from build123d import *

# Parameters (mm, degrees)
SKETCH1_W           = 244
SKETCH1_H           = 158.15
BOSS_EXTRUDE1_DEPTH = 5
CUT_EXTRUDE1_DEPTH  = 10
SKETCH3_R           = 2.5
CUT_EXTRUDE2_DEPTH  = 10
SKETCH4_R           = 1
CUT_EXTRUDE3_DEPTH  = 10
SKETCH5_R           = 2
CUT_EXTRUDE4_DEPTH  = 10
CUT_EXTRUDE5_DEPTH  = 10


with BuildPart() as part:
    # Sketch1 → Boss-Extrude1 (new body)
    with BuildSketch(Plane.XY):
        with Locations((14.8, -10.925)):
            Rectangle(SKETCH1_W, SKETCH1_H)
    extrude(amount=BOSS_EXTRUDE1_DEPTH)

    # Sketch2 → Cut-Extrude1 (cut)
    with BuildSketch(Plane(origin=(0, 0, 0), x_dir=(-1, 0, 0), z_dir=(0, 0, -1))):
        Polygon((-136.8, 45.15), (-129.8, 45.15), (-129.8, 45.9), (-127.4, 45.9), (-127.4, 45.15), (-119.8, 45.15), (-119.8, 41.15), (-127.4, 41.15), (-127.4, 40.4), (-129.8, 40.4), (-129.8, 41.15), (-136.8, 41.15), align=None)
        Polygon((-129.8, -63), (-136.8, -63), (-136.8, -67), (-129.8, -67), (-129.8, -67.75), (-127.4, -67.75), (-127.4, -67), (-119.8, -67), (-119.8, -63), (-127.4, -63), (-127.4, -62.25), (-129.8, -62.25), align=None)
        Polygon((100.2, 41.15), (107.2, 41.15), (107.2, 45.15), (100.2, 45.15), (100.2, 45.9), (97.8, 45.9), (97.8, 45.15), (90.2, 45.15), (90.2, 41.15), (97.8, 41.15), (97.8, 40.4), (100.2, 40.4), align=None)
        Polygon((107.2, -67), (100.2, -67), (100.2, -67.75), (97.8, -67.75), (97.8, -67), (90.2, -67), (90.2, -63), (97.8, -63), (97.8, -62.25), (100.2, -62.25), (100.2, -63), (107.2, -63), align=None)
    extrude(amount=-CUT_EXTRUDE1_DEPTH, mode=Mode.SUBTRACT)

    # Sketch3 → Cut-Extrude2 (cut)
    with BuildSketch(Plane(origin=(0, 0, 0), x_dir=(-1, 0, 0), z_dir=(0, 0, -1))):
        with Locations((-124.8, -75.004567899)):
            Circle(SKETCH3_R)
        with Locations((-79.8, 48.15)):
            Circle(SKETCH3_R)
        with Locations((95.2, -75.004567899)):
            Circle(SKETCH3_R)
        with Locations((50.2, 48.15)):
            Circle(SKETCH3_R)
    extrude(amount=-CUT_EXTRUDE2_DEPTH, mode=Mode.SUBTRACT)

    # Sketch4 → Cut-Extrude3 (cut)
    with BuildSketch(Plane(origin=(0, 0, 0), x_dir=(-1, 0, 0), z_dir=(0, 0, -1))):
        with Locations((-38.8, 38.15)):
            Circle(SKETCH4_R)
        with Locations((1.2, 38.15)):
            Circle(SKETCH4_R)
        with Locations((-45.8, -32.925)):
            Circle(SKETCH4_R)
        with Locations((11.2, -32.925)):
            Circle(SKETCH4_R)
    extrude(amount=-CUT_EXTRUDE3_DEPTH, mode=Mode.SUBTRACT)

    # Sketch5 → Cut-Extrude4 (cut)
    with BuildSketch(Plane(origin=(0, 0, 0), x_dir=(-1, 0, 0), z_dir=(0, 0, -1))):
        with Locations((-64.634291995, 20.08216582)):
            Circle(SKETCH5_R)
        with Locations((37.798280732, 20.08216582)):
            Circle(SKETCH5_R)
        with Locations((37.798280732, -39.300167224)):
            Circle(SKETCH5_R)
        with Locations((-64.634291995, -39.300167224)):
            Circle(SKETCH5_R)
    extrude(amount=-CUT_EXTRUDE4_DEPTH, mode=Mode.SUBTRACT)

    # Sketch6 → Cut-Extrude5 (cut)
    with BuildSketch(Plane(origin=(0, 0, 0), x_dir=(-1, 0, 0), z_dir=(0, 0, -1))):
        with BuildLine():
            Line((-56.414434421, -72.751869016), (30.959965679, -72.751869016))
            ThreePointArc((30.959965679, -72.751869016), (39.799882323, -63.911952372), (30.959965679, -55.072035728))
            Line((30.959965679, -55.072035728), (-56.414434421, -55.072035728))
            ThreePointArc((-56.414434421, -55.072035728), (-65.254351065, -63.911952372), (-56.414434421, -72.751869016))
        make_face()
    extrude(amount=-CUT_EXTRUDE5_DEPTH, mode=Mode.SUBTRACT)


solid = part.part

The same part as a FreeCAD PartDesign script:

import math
import FreeCAD as App
import Part
import Sketcher

V = App.Vector
Q = App.Units.Quantity

doc = App.newDocument("Part")
body = doc.addObject("PartDesign::Body", "Body")

# Sketch on XY plane
sketch1 = body.newObject("Sketcher::SketchObject", "Sketch")
sketch1.AttachmentSupport = (doc.getObject("XY_Plane"), [""])
sketch1.MapMode = "FlatFace"
sketch1.addGeometry([
    Part.LineSegment(V(-107.2, 68.15, 0), V(-107.2, -90, 0)),
    Part.LineSegment(V(-107.2, -90, 0), V(136.8, -90, 0)),
    Part.LineSegment(V(136.8, -90, 0), V(136.8, 68.15, 0)),
    Part.LineSegment(V(136.8, 68.15, 0), V(-107.2, 68.15, 0)),
], False)
sketch1.addConstraint([
    Sketcher.Constraint("Coincident", 0, 2, 1, 1),
    Sketcher.Constraint("Coincident", 1, 2, 2, 1),
    Sketcher.Constraint("Coincident", 2, 2, 3, 1),
    Sketcher.Constraint("Coincident", 3, 2, 0, 1),
    Sketcher.Constraint("Vertical", 0),
    Sketcher.Constraint("Horizontal", 1),
    Sketcher.Constraint("Vertical", 2),
    Sketcher.Constraint("Horizontal", 3),
    Sketcher.Constraint("DistanceX", 1, 1, 1, 2, Q("244 mm")),
    Sketcher.Constraint("DistanceY", 0, 2, -1, 1, Q("90 mm")),
    Sketcher.Constraint("DistanceY", 0, 2, 0, 1, Q("158.15 mm")),
    Sketcher.Constraint("DistanceX", 0, 2, -1, 1, Q("107.2 mm")),
])
pad1 = body.newObject("PartDesign::Pad", "Pad")
pad1.Profile = sketch1
pad1.Length = 5

# Sketch on XY plane
sketch2 = body.newObject("Sketcher::SketchObject", "Sketch001")
sketch2.AttachmentSupport = (doc.getObject("XY_Plane"), [""])
sketch2.MapMode = "FlatFace"
sketch2.addGeometry([
    Part.LineSegment(V(129.8, 45.15, 0), V(136.8, 45.15, 0)),  # 0
    Part.LineSegment(V(136.8, 45.15, 0), V(136.8, 41.15, 0)),  # 1
    Part.LineSegment(V(136.8, 41.15, 0), V(129.8, 41.15, 0)),  # 2
    Part.LineSegment(V(129.8, 41.15, 0), V(129.8, 40.4, 0)),  # 3
    Part.LineSegment(V(129.8, 40.4, 0), V(127.4, 40.4, 0)),  # 4
    Part.LineSegment(V(127.4, 40.4, 0), V(127.4, 41.15, 0)),  # 5
    Part.LineSegment(V(127.4, 41.15, 0), V(119.8, 41.15, 0)),  # 6
    Part.LineSegment(V(119.8, 41.15, 0), V(119.8, 45.15, 0)),  # 7
    Part.LineSegment(V(119.8, 45.15, 0), V(127.4, 45.15, 0)),  # 8
    Part.LineSegment(V(127.4, 45.15, 0), V(127.4, 45.9, 0)),  # 9
    Part.LineSegment(V(127.4, 45.9, 0), V(129.8, 45.9, 0)),  # 10
    Part.LineSegment(V(129.8, 45.9, 0), V(129.8, 45.15, 0)),  # 11
    Part.LineSegment(V(129.8, -63, 0), V(136.8, -63, 0)),  # 12
    Part.LineSegment(V(136.8, -63, 0), V(136.8, -67, 0)),  # 13
    Part.LineSegment(V(136.8, -67, 0), V(129.8, -67, 0)),  # 14
    Part.LineSegment(V(129.8, -67, 0), V(129.8, -67.75, 0)),  # 15
    Part.LineSegment(V(129.8, -67.75, 0), V(127.4, -67.75, 0)),  # 16
    Part.LineSegment(V(127.4, -67.75, 0), V(127.4, -67, 0)),  # 17
    Part.LineSegment(V(127.4, -67, 0), V(119.8, -67, 0)),  # 18
    Part.LineSegment(V(119.8, -67, 0), V(119.8, -63, 0)),  # 19
    Part.LineSegment(V(119.8, -63, 0), V(127.4, -63, 0)),  # 20
    Part.LineSegment(V(127.4, -63, 0), V(127.4, -62.25, 0)),  # 21
    Part.LineSegment(V(127.4, -62.25, 0), V(129.8, -62.25, 0)),  # 22
    Part.LineSegment(V(129.8, -62.25, 0), V(129.8, -63, 0)),  # 23
    Part.LineSegment(V(-100.2, 41.15, 0), V(-107.2, 41.15, 0)),  # 24
    Part.LineSegment(V(-107.2, 41.15, 0), V(-107.2, 45.15, 0)),  # 25
    Part.LineSegment(V(-107.2, 45.15, 0), V(-100.2, 45.15, 0)),  # 26
    Part.LineSegment(V(-100.2, 45.15, 0), V(-100.2, 45.9, 0)),  # 27
    Part.LineSegment(V(-100.2, 45.9, 0), V(-97.8, 45.9, 0)),  # 28
    Part.LineSegment(V(-97.8, 45.9, 0), V(-97.8, 45.15, 0)),  # 29
    Part.LineSegment(V(-97.8, 45.15, 0), V(-90.2, 45.15, 0)),  # 30
    Part.LineSegment(V(-90.2, 45.15, 0), V(-90.2, 41.15, 0)),  # 31
    Part.LineSegment(V(-90.2, 41.15, 0), V(-97.8, 41.15, 0)),  # 32
    Part.LineSegment(V(-97.8, 41.15, 0), V(-97.8, 40.4, 0)),  # 33
    Part.LineSegment(V(-97.8, 40.4, 0), V(-100.2, 40.4, 0)),  # 34
    Part.LineSegment(V(-100.2, 40.4, 0), V(-100.2, 41.15, 0)),  # 35
    Part.LineSegment(V(-100.2, -67, 0), V(-107.2, -67, 0)),  # 36
    Part.LineSegment(V(-107.2, -67, 0), V(-107.2, -63, 0)),  # 37
    Part.LineSegment(V(-107.2, -63, 0), V(-100.2, -63, 0)),  # 38
    Part.LineSegment(V(-100.2, -63, 0), V(-100.2, -62.25, 0)),  # 39
    Part.LineSegment(V(-100.2, -62.25, 0), V(-97.8, -62.25, 0)),  # 40
    Part.LineSegment(V(-97.8, -62.25, 0), V(-97.8, -63, 0)),  # 41
    Part.LineSegment(V(-97.8, -63, 0), V(-90.2, -63, 0)),  # 42
    Part.LineSegment(V(-90.2, -63, 0), V(-90.2, -67, 0)),  # 43
    Part.LineSegment(V(-90.2, -67, 0), V(-97.8, -67, 0)),  # 44
    Part.LineSegment(V(-97.8, -67, 0), V(-97.8, -67.75, 0)),  # 45
    Part.LineSegment(V(-97.8, -67.75, 0), V(-100.2, -67.75, 0)),  # 46
    Part.LineSegment(V(-100.2, -67.75, 0), V(-100.2, -67, 0)),  # 47
], False)
sketch2.addConstraint([
    Sketcher.Constraint("Coincident", 0, 2, 1, 1),
    Sketcher.Constraint("Coincident", 1, 2, 2, 1),
    Sketcher.Constraint("Coincident", 2, 2, 3, 1),
    Sketcher.Constraint("Coincident", 3, 2, 4, 1),
    Sketcher.Constraint("Coincident", 4, 2, 5, 1),
    Sketcher.Constraint("Coincident", 5, 2, 6, 1),
    Sketcher.Constraint("Coincident", 6, 2, 7, 1),
    Sketcher.Constraint("Coincident", 7, 2, 8, 1),
    Sketcher.Constraint("Coincident", 8, 2, 9, 1),
    Sketcher.Constraint("Coincident", 9, 2, 10, 1),
    Sketcher.Constraint("Coincident", 10, 2, 11, 1),
    Sketcher.Constraint("Coincident", 11, 2, 0, 1),
    Sketcher.Constraint("Coincident", 12, 2, 13, 1),
    Sketcher.Constraint("Coincident", 13, 2, 14, 1),
    Sketcher.Constraint("Coincident", 14, 2, 15, 1),
    Sketcher.Constraint("Coincident", 15, 2, 16, 1),
    Sketcher.Constraint("Coincident", 16, 2, 17, 1),
    Sketcher.Constraint("Coincident", 17, 2, 18, 1),
    Sketcher.Constraint("Coincident", 18, 2, 19, 1),
    Sketcher.Constraint("Coincident", 19, 2, 20, 1),
    Sketcher.Constraint("Coincident", 20, 2, 21, 1),
    Sketcher.Constraint("Coincident", 21, 2, 22, 1),
    Sketcher.Constraint("Coincident", 22, 2, 23, 1),
    Sketcher.Constraint("Coincident", 23, 2, 12, 1),
    Sketcher.Constraint("Coincident", 24, 2, 25, 1),
    Sketcher.Constraint("Coincident", 25, 2, 26, 1),
    Sketcher.Constraint("Coincident", 26, 2, 27, 1),
    Sketcher.Constraint("Coincident", 27, 2, 28, 1),
    Sketcher.Constraint("Coincident", 28, 2, 29, 1),
    Sketcher.Constraint("Coincident", 29, 2, 30, 1),
    Sketcher.Constraint("Coincident", 30, 2, 31, 1),
    Sketcher.Constraint("Coincident", 31, 2, 32, 1),
    Sketcher.Constraint("Coincident", 32, 2, 33, 1),
    Sketcher.Constraint("Coincident", 33, 2, 34, 1),
    Sketcher.Constraint("Coincident", 34, 2, 35, 1),
    Sketcher.Constraint("Coincident", 35, 2, 24, 1),
    Sketcher.Constraint("Coincident", 36, 2, 37, 1),
    Sketcher.Constraint("Coincident", 37, 2, 38, 1),
    Sketcher.Constraint("Coincident", 38, 2, 39, 1),
    Sketcher.Constraint("Coincident", 39, 2, 40, 1),
    Sketcher.Constraint("Coincident", 40, 2, 41, 1),
    Sketcher.Constraint("Coincident", 41, 2, 42, 1),
    Sketcher.Constraint("Coincident", 42, 2, 43, 1),
    Sketcher.Constraint("Coincident", 43, 2, 44, 1),
    Sketcher.Constraint("Coincident", 44, 2, 45, 1),
    Sketcher.Constraint("Coincident", 45, 2, 46, 1),
    Sketcher.Constraint("Coincident", 46, 2, 47, 1),
    Sketcher.Constraint("Coincident", 47, 2, 36, 1),
    Sketcher.Constraint("Horizontal", 0),
    Sketcher.Constraint("Vertical", 1),
    Sketcher.Constraint("Horizontal", 2),
    Sketcher.Constraint("Vertical", 3),
    Sketcher.Constraint("Horizontal", 4),
    Sketcher.Constraint("Vertical", 5),
    Sketcher.Constraint("Horizontal", 6),
    Sketcher.Constraint("Vertical", 7),
    Sketcher.Constraint("Horizontal", 8),
    Sketcher.Constraint("Vertical", 9),
    Sketcher.Constraint("Horizontal", 10),
    Sketcher.Constraint("Vertical", 11),
    Sketcher.Constraint("Horizontal", 12),
    Sketcher.Constraint("Vertical", 13),
    Sketcher.Constraint("Horizontal", 14),
    Sketcher.Constraint("Vertical", 15),
    Sketcher.Constraint("Horizontal", 16),
    Sketcher.Constraint("Vertical", 17),
    Sketcher.Constraint("Horizontal", 18),
    Sketcher.Constraint("Vertical", 19),
    Sketcher.Constraint("Horizontal", 20),
    Sketcher.Constraint("Vertical", 21),
    Sketcher.Constraint("Horizontal", 22),
    Sketcher.Constraint("Vertical", 23),
    Sketcher.Constraint("Horizontal", 24),
    Sketcher.Constraint("Vertical", 25),
    Sketcher.Constraint("Horizontal", 26),
    Sketcher.Constraint("Vertical", 27),
    Sketcher.Constraint("Horizontal", 28),
    Sketcher.Constraint("Vertical", 29),
    Sketcher.Constraint("Horizontal", 30),
    Sketcher.Constraint("Vertical", 31),
    Sketcher.Constraint("Horizontal", 32),
    Sketcher.Constraint("Vertical", 33),
    Sketcher.Constraint("Horizontal", 34),
    Sketcher.Constraint("Vertical", 35),
    Sketcher.Constraint("Horizontal", 36),
    Sketcher.Constraint("Vertical", 37),
    Sketcher.Constraint("Horizontal", 38),
    Sketcher.Constraint("Vertical", 39),
    Sketcher.Constraint("Horizontal", 40),
    Sketcher.Constraint("Vertical", 41),
    Sketcher.Constraint("Horizontal", 42),
    Sketcher.Constraint("Vertical", 43),
    Sketcher.Constraint("Horizontal", 44),
    Sketcher.Constraint("Vertical", 45),
    Sketcher.Constraint("Horizontal", 46),
    Sketcher.Constraint("Vertical", 47),
    Sketcher.Constraint("Horizontal", 2, 2, 5, 2),
    Sketcher.Constraint("Horizontal", 0, 2, 7, 2),
    Sketcher.Constraint("Horizontal", 14, 2, 17, 2),
    Sketcher.Constraint("Horizontal", 12, 2, 19, 2),
    Sketcher.Constraint("Horizontal", 6, 2, 24, 2),
    Sketcher.Constraint("Horizontal", 11, 2, 25, 2),
    Sketcher.Constraint("Horizontal", 10, 2, 27, 2),
    Sketcher.Constraint("Horizontal", 26, 2, 29, 2),
    Sketcher.Constraint("Horizontal", 24, 2, 31, 2),
    Sketcher.Constraint("Horizontal", 4, 2, 33, 2),
    Sketcher.Constraint("Horizontal", 18, 2, 36, 2),
    Sketcher.Constraint("Horizontal", 23, 2, 37, 2),
    Sketcher.Constraint("Horizontal", 22, 2, 39, 2),
    Sketcher.Constraint("Horizontal", 38, 2, 41, 2),
    Sketcher.Constraint("Horizontal", 36, 2, 43, 2),
    Sketcher.Constraint("Horizontal", 16, 2, 45, 2),
    Sketcher.Constraint("Vertical", 5, 2, 8, 2),
    Sketcher.Constraint("Vertical", 3, 2, 10, 2),
    Sketcher.Constraint("Vertical", 1, 2, 12, 2),
    Sketcher.Constraint("Vertical", 11, 2, 14, 2),
    Sketcher.Constraint("Vertical", 9, 2, 16, 2),
    Sketcher.Constraint("Vertical", 7, 2, 18, 2),
    Sketcher.Constraint("Vertical", 17, 2, 20, 2),
    Sketcher.Constraint("Vertical", 15, 2, 22, 2),
    Sketcher.Constraint("Vertical", 29, 2, 32, 2),
    Sketcher.Constraint("Vertical", 27, 2, 34, 2),
    Sketcher.Constraint("Vertical", 25, 2, 36, 2),
    Sketcher.Constraint("Vertical", 35, 2, 38, 2),
    Sketcher.Constraint("Vertical", 33, 2, 40, 2),
    Sketcher.Constraint("Vertical", 31, 2, 42, 2),
    Sketcher.Constraint("Vertical", 41, 2, 44, 2),
    Sketcher.Constraint("Vertical", 39, 2, 46, 2),
    Sketcher.Constraint("Equal", 14, 24),
    Sketcher.Constraint("Equal", 22, 28),
    Sketcher.Constraint("Equal", 20, 30),
    Sketcher.Constraint("Equal", 5, 9),
    Sketcher.Constraint("Equal", 7, 13),
    Sketcher.Constraint("Equal", 11, 15),
    Sketcher.Constraint("Equal", 17, 21),
    Sketcher.Constraint("DistanceX", 0, 1, 0, 2, Q("7 mm")),
    Sketcher.Constraint("DistanceY", 1, 2, 1, 1, Q("4 mm")),
    Sketcher.Constraint("DistanceX", 4, 2, 4, 1, Q("2.4 mm")),
    Sketcher.Constraint("DistanceX", 6, 2, 6, 1, Q("7.6 mm")),
    Sketcher.Constraint("DistanceY", 12, 2, -1, 1, Q("63 mm")),
    Sketcher.Constraint("DistanceX", 24, 2, 6, 2, Q("227 mm")),
    Sketcher.Constraint("DistanceY", 3, 2, 3, 1, Q("0.75 mm")),
    Sketcher.Constraint("DistanceX", -1, 1, 0, 2, Q("136.8 mm")),
    Sketcher.Constraint("DistanceY", -1, 1, 3, 2, Q("40.4 mm")),
])
pocket1 = body.newObject("PartDesign::Pocket", "Pocket")
pocket1.Profile = sketch2
pocket1.Length = 10
pocket1.Reversed = True

# Sketch on XY plane
sketch3 = body.newObject("Sketcher::SketchObject", "Sketch002")
sketch3.AttachmentSupport = (doc.getObject("XY_Plane"), [""])
sketch3.MapMode = "FlatFace"
sketch3.addGeometry([
    Part.Circle(V(124.8, -75.004568, 0), V(0, 0, 1), 2.5),
    Part.Circle(V(79.8, 48.15, 0), V(0, 0, 1), 2.5),
    Part.Circle(V(-95.2, -75.004568, 0), V(0, 0, 1), 2.5),
    Part.Circle(V(-50.2, 48.15, 0), V(0, 0, 1), 2.5),
], False)
sketch3.addConstraint([
    Sketcher.Constraint("Equal", 0, 1),
    Sketcher.Constraint("Equal", 1, 2),
    Sketcher.Constraint("Equal", 2, 3),
    Sketcher.Constraint("Horizontal", 0, 3, 2, 3),
    Sketcher.Constraint("Horizontal", 1, 3, 3, 3),
    Sketcher.Constraint("Diameter", 0, Q("5 mm")),
    Sketcher.Constraint("DistanceX", 1, 3, 0, 3, Q("45 mm")),
    Sketcher.Constraint("DistanceX", 2, 3, 1, 3, Q("175 mm")),
    Sketcher.Constraint("DistanceX", 3, 3, 1, 3, Q("130 mm")),
    Sketcher.Constraint("DistanceX", -1, 1, 0, 3, Q("124.8 mm")),
    Sketcher.Constraint("DistanceY", -1, 1, 1, 3, Q("48.15 mm")),
    Sketcher.Constraint("DistanceY", 0, 3, -1, 1, Q("75.004568 mm")),
])
pocket2 = body.newObject("PartDesign::Pocket", "Pocket001")
pocket2.Profile = sketch3
pocket2.Length = 10
pocket2.Reversed = True

# Sketch on XY plane
sketch4 = body.newObject("Sketcher::SketchObject", "Sketch003")
sketch4.AttachmentSupport = (doc.getObject("XY_Plane"), [""])
sketch4.MapMode = "FlatFace"
sketch4.addGeometry([
    Part.Circle(V(38.8, 38.15, 0), V(0, 0, 1), 1),
    Part.Circle(V(-1.2, 38.15, 0), V(0, 0, 1), 1),
    Part.Circle(V(45.8, -32.925, 0), V(0, 0, 1), 1),
    Part.Circle(V(-11.2, -32.925, 0), V(0, 0, 1), 1),
], False)
sketch4.addConstraint([
    Sketcher.Constraint("Equal", 0, 1),
    Sketcher.Constraint("Equal", 1, 2),
    Sketcher.Constraint("Equal", 2, 3),
    Sketcher.Constraint("Horizontal", 0, 3, 1, 3),
    Sketcher.Constraint("Horizontal", 2, 3, 3, 3),
    Sketcher.Constraint("Diameter", 0, Q("2 mm")),
    Sketcher.Constraint("DistanceX", 1, 3, 0, 3, Q("40 mm")),
    Sketcher.Constraint("DistanceX", 0, 3, 2, 3, Q("7 mm")),
    Sketcher.Constraint("DistanceX", 3, 3, 2, 3, Q("57 mm")),
    Sketcher.Constraint("DistanceX", -1, 1, 0, 3, Q("38.8 mm")),
    Sketcher.Constraint("DistanceY", -1, 1, 0, 3, Q("38.15 mm")),
    Sketcher.Constraint("DistanceY", 2, 3, -1, 1, Q("32.925 mm")),
])
pocket3 = body.newObject("PartDesign::Pocket", "Pocket002")
pocket3.Profile = sketch4
pocket3.Length = 10
pocket3.Reversed = True

# Sketch on XY plane
sketch5 = body.newObject("Sketcher::SketchObject", "Sketch004")
sketch5.AttachmentSupport = (doc.getObject("XY_Plane"), [""])
sketch5.MapMode = "FlatFace"
sketch5.addGeometry([
    Part.Circle(V(64.634292, 20.082166, 0), V(0, 0, 1), 2),
    Part.Circle(V(-37.798281, 20.082166, 0), V(0, 0, 1), 2),
    Part.Circle(V(-37.798281, -39.300167, 0), V(0, 0, 1), 2),
    Part.Circle(V(64.634292, -39.300167, 0), V(0, 0, 1), 2),
], False)
sketch5.addConstraint([
    Sketcher.Constraint("Equal", 0, 1),
    Sketcher.Constraint("Equal", 1, 2),
    Sketcher.Constraint("Equal", 2, 3),
    Sketcher.Constraint("Horizontal", 0, 3, 1, 3),
    Sketcher.Constraint("Horizontal", 2, 3, 3, 3),
    Sketcher.Constraint("Vertical", 1, 3, 2, 3),
    Sketcher.Constraint("Vertical", 0, 3, 3, 3),
    Sketcher.Constraint("Diameter", 0, Q("4 mm")),
    Sketcher.Constraint("DistanceX", -1, 1, 0, 3, Q("64.634292 mm")),
    Sketcher.Constraint("DistanceX", 1, 3, -1, 1, Q("37.798281 mm")),
    Sketcher.Constraint("DistanceY", -1, 1, 0, 3, Q("20.082166 mm")),
    Sketcher.Constraint("DistanceY", 2, 3, -1, 1, Q("39.300167 mm")),
])
pocket4 = body.newObject("PartDesign::Pocket", "Pocket003")
pocket4.Profile = sketch5
pocket4.Length = 10
pocket4.Reversed = True

# Sketch on XY plane
sketch6 = body.newObject("Sketcher::SketchObject", "Sketch005")
sketch6.AttachmentSupport = (doc.getObject("XY_Plane"), [""])
sketch6.MapMode = "FlatFace"
sketch6.addGeometry([
    Part.LineSegment(V(56.414434, -72.751869, 0), V(-30.959966, -72.751869, 0)),
    Part.ArcOfCircle(Part.Circle(V(-30.959966, -63.911952, 0), V(0, 0, 1), 8.839917), math.radians(90), math.radians(270)),
    Part.LineSegment(V(-30.959966, -55.072036, 0), V(56.414434, -55.072036, 0)),
    Part.ArcOfCircle(Part.Circle(V(56.414434, -63.911952, 0), V(0, 0, 1), 8.839917), math.radians(-90), math.radians(90)),
], False)
sketch6.addConstraint([
    Sketcher.Constraint("Tangent", 0, 2, 1, 2),
    Sketcher.Constraint("Tangent", 1, 1, 2, 1),
    Sketcher.Constraint("Tangent", 2, 2, 3, 2),
    Sketcher.Constraint("Tangent", 3, 1, 0, 1),
    Sketcher.Constraint("Horizontal", 0),
    Sketcher.Constraint("Horizontal", 2),
    Sketcher.Constraint("DistanceX", 0, 2, 0, 1, Q("87.3744 mm")),
    Sketcher.Constraint("Radius", 1, Q("8.839917 mm")),
    Sketcher.Constraint("DistanceY", 0, 2, -1, 1, Q("72.751869 mm")),
    Sketcher.Constraint("DistanceX", 1, 3, -1, 1, Q("30.959966 mm")),
])
pocket5 = body.newObject("PartDesign::Pocket", "Pocket004")
pocket5.Profile = sketch6
pocket5.Length = 10
pocket5.Reversed = True

doc.recompute()
